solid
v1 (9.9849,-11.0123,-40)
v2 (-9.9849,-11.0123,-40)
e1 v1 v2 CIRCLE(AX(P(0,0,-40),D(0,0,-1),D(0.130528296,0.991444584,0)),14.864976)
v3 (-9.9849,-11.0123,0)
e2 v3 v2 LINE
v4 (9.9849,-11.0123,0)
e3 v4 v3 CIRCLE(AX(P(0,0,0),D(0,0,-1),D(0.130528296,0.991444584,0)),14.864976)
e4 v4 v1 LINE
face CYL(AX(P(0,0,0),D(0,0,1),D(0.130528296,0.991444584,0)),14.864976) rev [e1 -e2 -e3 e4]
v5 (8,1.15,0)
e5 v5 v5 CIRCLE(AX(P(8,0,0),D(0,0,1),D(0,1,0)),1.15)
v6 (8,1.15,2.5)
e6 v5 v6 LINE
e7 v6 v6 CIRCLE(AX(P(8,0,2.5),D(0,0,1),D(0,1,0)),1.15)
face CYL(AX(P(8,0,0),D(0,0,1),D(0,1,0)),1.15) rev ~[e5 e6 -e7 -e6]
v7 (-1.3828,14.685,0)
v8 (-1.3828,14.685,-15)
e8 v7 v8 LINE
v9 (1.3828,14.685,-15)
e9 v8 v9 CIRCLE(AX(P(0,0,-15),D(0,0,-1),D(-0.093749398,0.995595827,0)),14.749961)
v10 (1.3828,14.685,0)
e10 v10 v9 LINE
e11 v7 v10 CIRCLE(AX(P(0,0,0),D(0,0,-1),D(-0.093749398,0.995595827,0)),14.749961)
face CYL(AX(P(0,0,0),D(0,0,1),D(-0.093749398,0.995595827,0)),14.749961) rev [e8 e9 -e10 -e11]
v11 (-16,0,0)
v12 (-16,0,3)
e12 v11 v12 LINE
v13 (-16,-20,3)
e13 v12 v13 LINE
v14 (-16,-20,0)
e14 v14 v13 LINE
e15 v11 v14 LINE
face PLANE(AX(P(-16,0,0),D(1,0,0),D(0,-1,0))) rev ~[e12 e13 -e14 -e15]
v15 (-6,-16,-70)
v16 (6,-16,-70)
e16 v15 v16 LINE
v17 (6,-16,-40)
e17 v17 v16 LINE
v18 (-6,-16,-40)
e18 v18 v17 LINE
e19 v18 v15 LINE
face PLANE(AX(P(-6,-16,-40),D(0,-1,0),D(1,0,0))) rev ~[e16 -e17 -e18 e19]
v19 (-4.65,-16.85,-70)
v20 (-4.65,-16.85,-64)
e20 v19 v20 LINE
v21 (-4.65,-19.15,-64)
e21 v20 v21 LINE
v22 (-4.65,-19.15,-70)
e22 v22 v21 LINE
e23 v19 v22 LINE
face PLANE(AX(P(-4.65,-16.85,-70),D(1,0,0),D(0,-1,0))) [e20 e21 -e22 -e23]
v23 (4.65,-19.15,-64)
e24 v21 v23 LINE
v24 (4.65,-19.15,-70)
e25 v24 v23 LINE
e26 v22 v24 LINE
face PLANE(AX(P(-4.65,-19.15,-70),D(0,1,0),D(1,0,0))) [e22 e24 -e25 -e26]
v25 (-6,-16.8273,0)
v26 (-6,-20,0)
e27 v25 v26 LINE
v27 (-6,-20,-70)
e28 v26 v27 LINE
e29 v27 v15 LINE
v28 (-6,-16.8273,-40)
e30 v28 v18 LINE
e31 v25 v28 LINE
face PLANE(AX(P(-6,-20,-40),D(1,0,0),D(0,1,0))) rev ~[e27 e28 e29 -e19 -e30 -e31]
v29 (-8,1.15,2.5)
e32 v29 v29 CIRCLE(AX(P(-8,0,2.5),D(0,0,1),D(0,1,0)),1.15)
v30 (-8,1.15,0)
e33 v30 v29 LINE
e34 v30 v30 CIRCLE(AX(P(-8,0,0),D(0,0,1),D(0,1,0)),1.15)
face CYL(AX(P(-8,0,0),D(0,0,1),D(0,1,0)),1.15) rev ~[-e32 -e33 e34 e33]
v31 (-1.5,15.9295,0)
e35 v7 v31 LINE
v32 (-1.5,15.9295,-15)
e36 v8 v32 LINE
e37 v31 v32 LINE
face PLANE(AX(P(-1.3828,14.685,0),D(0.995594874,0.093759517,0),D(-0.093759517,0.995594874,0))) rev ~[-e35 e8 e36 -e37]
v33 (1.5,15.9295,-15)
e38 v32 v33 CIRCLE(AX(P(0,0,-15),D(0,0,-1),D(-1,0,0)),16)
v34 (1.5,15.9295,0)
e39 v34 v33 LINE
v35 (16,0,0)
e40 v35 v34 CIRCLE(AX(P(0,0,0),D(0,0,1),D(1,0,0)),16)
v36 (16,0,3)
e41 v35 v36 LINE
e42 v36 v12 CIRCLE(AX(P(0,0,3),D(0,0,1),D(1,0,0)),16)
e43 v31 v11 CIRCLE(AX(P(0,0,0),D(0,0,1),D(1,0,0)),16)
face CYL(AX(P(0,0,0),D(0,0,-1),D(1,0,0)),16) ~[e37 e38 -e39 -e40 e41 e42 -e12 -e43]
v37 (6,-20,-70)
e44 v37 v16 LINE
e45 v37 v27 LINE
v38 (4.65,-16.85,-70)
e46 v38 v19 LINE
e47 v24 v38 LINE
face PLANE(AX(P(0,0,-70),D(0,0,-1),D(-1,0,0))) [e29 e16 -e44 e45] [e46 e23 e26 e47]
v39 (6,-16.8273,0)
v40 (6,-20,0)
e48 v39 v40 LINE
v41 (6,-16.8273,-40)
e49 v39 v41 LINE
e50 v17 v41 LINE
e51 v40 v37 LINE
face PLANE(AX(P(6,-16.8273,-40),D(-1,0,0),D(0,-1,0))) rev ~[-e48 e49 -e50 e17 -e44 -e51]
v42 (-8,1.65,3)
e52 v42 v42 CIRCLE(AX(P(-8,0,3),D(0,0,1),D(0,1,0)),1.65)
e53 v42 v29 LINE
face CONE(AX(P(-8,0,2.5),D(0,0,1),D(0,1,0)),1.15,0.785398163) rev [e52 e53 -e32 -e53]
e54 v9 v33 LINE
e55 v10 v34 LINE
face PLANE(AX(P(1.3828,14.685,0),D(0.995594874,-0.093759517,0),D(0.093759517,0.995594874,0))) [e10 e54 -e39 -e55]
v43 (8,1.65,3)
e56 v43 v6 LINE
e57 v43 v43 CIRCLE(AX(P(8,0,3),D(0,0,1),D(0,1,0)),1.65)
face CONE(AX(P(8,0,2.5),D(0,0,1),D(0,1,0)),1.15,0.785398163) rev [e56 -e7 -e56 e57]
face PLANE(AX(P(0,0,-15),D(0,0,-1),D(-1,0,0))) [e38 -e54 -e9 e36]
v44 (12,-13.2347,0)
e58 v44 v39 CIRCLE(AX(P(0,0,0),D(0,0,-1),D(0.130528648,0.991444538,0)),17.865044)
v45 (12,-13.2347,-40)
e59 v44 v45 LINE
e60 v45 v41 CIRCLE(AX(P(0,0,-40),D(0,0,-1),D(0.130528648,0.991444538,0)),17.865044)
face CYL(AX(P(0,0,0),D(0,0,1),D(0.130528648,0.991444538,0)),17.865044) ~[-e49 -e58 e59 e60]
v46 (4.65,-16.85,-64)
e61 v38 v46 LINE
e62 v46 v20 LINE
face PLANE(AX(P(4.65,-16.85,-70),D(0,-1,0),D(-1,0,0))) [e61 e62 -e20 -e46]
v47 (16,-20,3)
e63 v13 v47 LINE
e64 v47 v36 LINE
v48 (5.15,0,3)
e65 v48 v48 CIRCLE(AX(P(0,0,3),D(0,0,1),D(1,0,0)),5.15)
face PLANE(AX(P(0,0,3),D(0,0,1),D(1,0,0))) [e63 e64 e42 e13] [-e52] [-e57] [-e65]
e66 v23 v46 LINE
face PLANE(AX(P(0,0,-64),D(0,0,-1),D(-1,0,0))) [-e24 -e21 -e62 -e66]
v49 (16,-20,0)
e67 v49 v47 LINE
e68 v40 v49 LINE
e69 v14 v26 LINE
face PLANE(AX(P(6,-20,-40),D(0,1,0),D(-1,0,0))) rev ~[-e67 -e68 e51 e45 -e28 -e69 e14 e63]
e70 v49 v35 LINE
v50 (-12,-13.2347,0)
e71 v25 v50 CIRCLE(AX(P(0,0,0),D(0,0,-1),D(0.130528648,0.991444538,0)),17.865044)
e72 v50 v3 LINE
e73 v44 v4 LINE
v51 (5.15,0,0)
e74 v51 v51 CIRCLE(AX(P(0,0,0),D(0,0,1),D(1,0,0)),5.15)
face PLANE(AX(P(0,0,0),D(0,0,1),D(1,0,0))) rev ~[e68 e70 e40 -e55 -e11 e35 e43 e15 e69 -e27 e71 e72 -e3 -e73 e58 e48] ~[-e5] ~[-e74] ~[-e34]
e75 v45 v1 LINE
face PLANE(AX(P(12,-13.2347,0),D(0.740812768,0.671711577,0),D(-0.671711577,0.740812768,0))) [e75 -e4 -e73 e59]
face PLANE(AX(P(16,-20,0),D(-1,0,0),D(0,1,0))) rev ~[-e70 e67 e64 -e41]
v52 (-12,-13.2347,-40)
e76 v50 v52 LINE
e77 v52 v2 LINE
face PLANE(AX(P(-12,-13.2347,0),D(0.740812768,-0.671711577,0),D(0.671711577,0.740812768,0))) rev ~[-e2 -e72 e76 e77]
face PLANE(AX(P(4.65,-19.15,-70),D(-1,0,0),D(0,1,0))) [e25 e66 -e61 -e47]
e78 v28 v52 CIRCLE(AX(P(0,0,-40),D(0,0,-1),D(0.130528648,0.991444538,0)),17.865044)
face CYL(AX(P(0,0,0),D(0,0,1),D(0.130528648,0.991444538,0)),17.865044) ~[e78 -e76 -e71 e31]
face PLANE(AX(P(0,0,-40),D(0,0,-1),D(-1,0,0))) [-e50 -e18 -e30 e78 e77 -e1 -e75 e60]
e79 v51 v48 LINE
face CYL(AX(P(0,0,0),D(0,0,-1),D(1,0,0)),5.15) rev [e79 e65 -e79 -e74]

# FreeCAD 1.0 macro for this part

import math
import FreeCAD as App
import Part
import Sketcher
Q = App.Units.Quantity


def edges_at(feature, points):
    """Names of the edges that pass closest to the given points."""
    edges = feature.Shape.Edges
    near = lambda p: min(range(len(edges)), key=lambda i: edges[i].distToShape(Part.Vertex(*p))[0])
    return sorted({f"Edge{near(p) + 1}" for p in points})


def add_polygon(sketch, points):
    """Adds a closed chain of lines whose ends are joined by coincident constraints."""
    first, n = sketch.GeometryCount, len(points)
    for a, b in zip(points, points[1:] + points[:1]):
        sketch.addGeometry(Part.LineSegment(App.Vector(*a, 0), App.Vector(*b, 0)), False)
    for i in range(n):
        sketch.addConstraint(Sketcher.Constraint("Coincident", first + i, 2, first + (i + 1) % n, 1))

doc = App.newDocument("Part")
params = doc.addObject("Spreadsheet::Sheet", "Params")
for row, (alias, value) in enumerate([
    ("sketch1_radius", "16 mm"),
    ("sketch1_diameter", "10.3 mm"),
    ("sketch1_height", "20 mm"),
    ("pad1_length", "3 mm"),
    ("sketch2_diameter", "2.3 mm"),
    ("hole_diameter", "2.3 mm"),
    ("sketch3_radius", "16 mm"),
    ("sketch3_length", "1.25 mm"),
    ("pad2_length", "15 mm"),
    ("sketch4_width", "12 mm"),
    ("sketch4_length", "3 mm"),
    ("pad3_length", "40 mm"),
    ("chamfer_size", "0.5 mm"),
    ("sketch5_height", "4 mm"),
    ("sketch5_width", "12 mm"),
    ("pad4_length", "30 mm"),
    ("sketch6_width", "9.3 mm"),
    ("sketch6_height", "2.3 mm"),
    ("pocket1_length", "6 mm"),
], start=1):
    params.set(f"A{row}", alias)
    params.set(f"B{row}", "=" + value)
    params.setAlias(f"B{row}", alias)

body = doc.addObject("PartDesign::Body", "Body")

# Sketch on XY plane
sketch1 = body.newObject("Sketcher::SketchObject", "Sketch")
sketch1.AttachmentSupport = (doc.getObject("XY_Plane"), [""])
sketch1.MapMode = "FlatFace"
sketch1.addGeometry(Part.ArcOfCircle(Part.Circle(App.Vector(0, 0, 0), App.Vector(0, 0, 1), 16), math.radians(0), math.radians(180)), False)
sketch1.addGeometry(Part.LineSegment(App.Vector(-16, 0, 0), App.Vector(-16, -20, 0)), False)
sketch1.addGeometry(Part.LineSegment(App.Vector(-16, -20, 0), App.Vector(16, -20, 0)), False)
sketch1.addGeometry(Part.LineSegment(App.Vector(16, -20, 0), App.Vector(16, 0, 0)), False)
sketch1.addGeometry(Part.Circle(App.Vector(0, 0, 0), App.Vector(0, 0, 1), 5), False)
sketch1.addConstraint(Sketcher.Constraint("Tangent", 0, 2, 1, 1))
sketch1.addConstraint(Sketcher.Constraint("Coincident", 1, 2, 2, 1))
sketch1.addConstraint(Sketcher.Constraint("Coincident", 2, 2, 3, 1))
sketch1.addConstraint(Sketcher.Constraint("Tangent", 3, 2, 0, 1))
sketch1.addConstraint(Sketcher.Constraint("Vertical", 1))
sketch1.addConstraint(Sketcher.Constraint("Horizontal", 2))
sketch1.addConstraint(Sketcher.Constraint("Vertical", 3))
sketch1.addConstraint(Sketcher.Constraint("Coincident", 0, 3, -1, 1))
sketch1.addConstraint(Sketcher.Constraint("Coincident", 4, 3, -1, 1))
sketch1.addConstraint(Sketcher.Constraint("Radius", 0, 16.0))
sketch1.addConstraint(Sketcher.Constraint("Diameter", 4, 10.3))
sketch1.addConstraint(Sketcher.Constraint("DistanceY", 1, 2, 1, 1, 20.0))
sketch1.setExpression("Constraints[9]", "Params.sketch1_radius")
sketch1.setExpression("Constraints[10]", "Params.sketch1_diameter")
sketch1.setExpression("Constraints[11]", "Params.sketch1_height")
pad1 = body.newObject("PartDesign::Pad", "Pad")
pad1.Profile = sketch1
pad1.setExpression("Length", "Params.pad1_length")

# Sketch on XY plane
sketch2 = body.newObject("Sketcher::SketchObject", "Sketch001")
sketch2.AttachmentSupport = (doc.getObject("XY_Plane"), [""])
sketch2.MapMode = "FlatFace"
sketch2.addGeometry(Part.Circle(App.Vector(-8, 0, 0), App.Vector(0, 0, 1), 1.1), False)
sketch2.addGeometry(Part.Circle(App.Vector(8, 0, 0), App.Vector(0, 0, 1), 1.1), False)
sketch2.addConstraint(Sketcher.Constraint("Equal", 0, 1))
sketch2.addConstraint(Sketcher.Constraint("Symmetric", 0, 3, 1, 3, -1, 1))
sketch2.addConstraint(Sketcher.Constraint("PointOnObject", 0, 3, -1))
sketch2.addConstraint(Sketcher.Constraint("Diameter", 0, 2.3))
sketch2.addConstraint(Sketcher.Constraint("DistanceX", 0, 3, -1, 1, 8.0))
sketch2.setExpression("Constraints[3]", "Params.sketch2_diameter")
doc.recompute()
hole = body.newObject("PartDesign::Hole", "Hole")
hole.Profile = sketch2
hole.ThreadType = "None"
hole.setExpression("Diameter", "Params.hole_diameter")
hole.DepthType = "ThroughAll"
hole.Reversed = True

# Sketch on XY plane
sketch3 = body.newObject("Sketcher::SketchObject", "Sketch002")
sketch3.AttachmentSupport = (doc.getObject("XY_Plane"), [""])
sketch3.MapMode = "FlatFace"
sketch3.addGeometry(Part.ArcOfCircle(Part.Circle(App.Vector(0, 0, 0), App.Vector(0, 0, 1), 14.7), math.radians(84.62), math.radians(95.38)), False)
sketch3.addGeometry(Part.LineSegment(App.Vector(-1.4, 14.7, 0), App.Vector(-1.5, 15.9, 0)), False)
sketch3.addGeometry(Part.ArcOfCircle(Part.Circle(App.Vector(0, 0, 0), App.Vector(0, 0, 1), 16), math.radians(84.62), math.radians(95.38)), False)
sketch3.addGeometry(Part.LineSegment(App.Vector(1.5, 15.9, 0), App.Vector(1.4, 14.7, 0)), False)
sketch3.addConstraint(Sketcher.Constraint("Coincident", 0, 2, 1, 1))
sketch3.addConstraint(Sketcher.Constraint("Coincident", 1, 2, 2, 2))
sketch3.addConstraint(Sketcher.Constraint("Coincident", 2, 1, 3, 1))
sketch3.addConstraint(Sketcher.Constraint("Coincident", 3, 2, 0, 1))
sketch3.addConstraint(Sketcher.Constraint("Coincident", 0, 3, -1, 1))
sketch3.addConstraint(Sketcher.Constraint("Coincident", 2, 3, -1, 1))
sketch3.addConstraint(Sketcher.Constraint("Horizontal", 1, 2, 2, 1))
sketch3.addConstraint(Sketcher.Constraint("Horizontal", 0, 2, 3, 2))
sketch3.addConstraint(Sketcher.Constraint("Radius", 2, 16.0))
sketch3.addConstraint(Sketcher.Constraint("DistanceX", 1, 2, 2, 1, 3.0))
sketch3.addConstraint(Sketcher.Constraint("Distance", 1, 1.25))
sketch3.addConstraint(Sketcher.Constraint("Angle", 1, Q("95.38 deg")))
sketch3.setExpression("Constraints[8]", "Params.sketch3_radius")
sketch3.setExpression("Constraints[10]", "Params.sketch3_length")
pad2 = body.newObject("PartDesign::Pad", "Pad001")
pad2.Profile = sketch3
pad2.setExpression("Length", "Params.pad2_length")
pad2.Reversed = True

# Sketch on XY plane
sketch4 = body.newObject("Sketcher::SketchObject", "Sketch003")
sketch4.AttachmentSupport = (doc.getObject("XY_Plane"), [""])
sketch4.MapMode = "FlatFace"
sketch4.addGeometry(Part.ArcOfCircle(Part.Circle(App.Vector(0, 0, 0), App.Vector(0, 0, 1), 14.9), math.radians(-132), math.radians(-48)), False)
sketch4.addGeometry(Part.LineSegment(App.Vector(10, -11, 0), App.Vector(12, -13.2, 0)), False)
sketch4.addGeometry(Part.ArcOfCircle(Part.Circle(App.Vector(0, 0, 0), App.Vector(0, 0, 1), 17.9), math.radians(-70), math.radians(-48)), False)
sketch4.addGeometry(Part.LineSegment(App.Vector(6, -16.8, 0), App.Vector(6, -20, 0)), False)
sketch4.addGeometry(Part.LineSegment(App.Vector(6, -20, 0), App.Vector(-6, -20, 0)), False)
sketch4.addGeometry(Part.LineSegment(App.Vector(-6, -20, 0), App.Vector(-6, -16.8, 0)), False)
sketch4.addGeometry(Part.ArcOfCircle(Part.Circle(App.Vector(0, 0, 0), App.Vector(0, 0, 1), 17.9), math.radians(-132), math.radians(-110)), False)
sketch4.addGeometry(Part.LineSegment(App.Vector(-12, -13.2, 0), App.Vector(-10, -11, 0)), False)
sketch4.addConstraint(Sketcher.Constraint("Coincident", 0, 2, 1, 1))
sketch4.addConstraint(Sketcher.Constraint("Coincident", 1, 2, 2, 2))
sketch4.addConstraint(Sketcher.Constraint("Coincident", 2, 1, 3, 1))
sketch4.addConstraint(Sketcher.Constraint("Coincident", 3, 2, 4, 1))
sketch4.addConstraint(Sketcher.Constraint("Coincident", 4, 2, 5, 1))
sketch4.addConstraint(Sketcher.Constraint("Coincident", 5, 2, 6, 2))
sketch4.addConstraint(Sketcher.Constraint("Coincident", 6, 1, 7, 1))
sketch4.addConstraint(Sketcher.Constraint("Coincident", 7, 2, 0, 1))
sketch4.addConstraint(Sketcher.Constraint("Vertical", 3))
sketch4.addConstraint(Sketcher.Constraint("Horizontal", 4))
sketch4.addConstraint(Sketcher.Constraint("Vertical", 5))
sketch4.addConstraint(Sketcher.Constraint("Coincident", 0, 3, -1, 1))
sketch4.addConstraint(Sketcher.Constraint("Coincident", 2, 3, -1, 1))
sketch4.addConstraint(Sketcher.Constraint("Coincident", 6, 3, -1, 1))
sketch4.addConstraint(Sketcher.Constraint("Equal", 2, 6))
sketch4.addConstraint(Sketcher.Constraint("Horizontal", 2, 1, 5, 2))
sketch4.addConstraint(Sketcher.Constraint("Horizontal", 1, 2, 6, 1))
sketch4.addConstraint(Sketcher.Constraint("Horizontal", 0, 2, 7, 2))
sketch4.addConstraint(Sketcher.Constraint("DistanceX", 4, 2, 4, 1, 12.0))
sketch4.addConstraint(Sketcher.Constraint("Distance", 1, 3.0))
sketch4.addConstraint(Sketcher.Constraint("DistanceX", -1, 1, 1, 2, 12.0))
sketch4.addConstraint(Sketcher.Constraint("DistanceY", 3, 2, -1, 1, 20.0))
sketch4.addConstraint(Sketcher.Constraint("Angle", 1, Q("-47.8007 deg")))
sketch4.addConstraint(Sketcher.Constraint("Radius", 0, 14.865))
sketch4.setExpression("Constraints[18]", "Params.sketch4_width")
sketch4.setExpression("Constraints[19]", "Params.sketch4_length")
pad3 = body.newObject("PartDesign::Pad", "Pad002")
pad3.Profile = sketch4
pad3.setExpression("Length", "Params.pad3_length")
pad3.Reversed = True
doc.recompute()

chamfer = body.newObject("PartDesign::Chamfer", "Chamfer")
chamfer.Base = (pad3, edges_at(pad3, [(-8, -1.15, 3), (8, -1.15, 3)]))
chamfer.setExpression("Size", "Params.chamfer_size")

# Sketch on XY plane
sketch5 = body.newObject("Sketcher::SketchObject", "Sketch004")
sketch5.AttachmentSupport = (doc.getObject("XY_Plane"), [""])
sketch5.MapMode = "FlatFace"
sketch5.AttachmentOffset = App.Placement(App.Vector(0, 0, -40), App.Rotation())
add_polygon(sketch5, [(6, -16), (6, -20), (-6, -20), (-6, -16)])  # lines 0-3
sketch5.addConstraint(Sketcher.Constraint("Vertical", 0))
sketch5.addConstraint(Sketcher.Constraint("Horizontal", 1))
sketch5.addConstraint(Sketcher.Constraint("Vertical", 2))
sketch5.addConstraint(Sketcher.Constraint("Horizontal", 3))
sketch5.addConstraint(Sketcher.Constraint("DistanceY", 0, 2, 0, 1, 4.0))
sketch5.addConstraint(Sketcher.Constraint("DistanceX", 1, 2, 1, 1, 12.0))
sketch5.addConstraint(Sketcher.Constraint("DistanceX", -1, 1, 0, 2, 6.0))
sketch5.addConstraint(Sketcher.Constraint("DistanceY", 0, 2, -1, 1, 20.0))
sketch5.setExpression("Constraints[8]", "Params.sketch5_height")
sketch5.setExpression("Constraints[9]", "Params.sketch5_width")
pad4 = body.newObject("PartDesign::Pad", "Pad003")
pad4.Profile = sketch5
pad4.setExpression("Length", "Params.pad4_length")
pad4.Reversed = True

# Sketch on XY plane
sketch6 = body.newObject("Sketcher::SketchObject", "Sketch005")
sketch6.AttachmentSupport = (doc.getObject("XY_Plane"), [""])
sketch6.MapMode = "FlatFace"
sketch6.AttachmentOffset = App.Placement(App.Vector(0, 0, -70), App.Rotation())
add_polygon(sketch6, [(-4.7, -16.9), (4.7, -16.9), (4.7, -19.1), (-4.7, -19.1)])  # lines 0-3
sketch6.addConstraint(Sketcher.Constraint("Horizontal", 0))
sketch6.addConstraint(Sketcher.Constraint("Vertical", 1))
sketch6.addConstraint(Sketcher.Constraint("Horizontal", 2))
sketch6.addConstraint(Sketcher.Constraint("Vertical", 3))
sketch6.addConstraint(Sketcher.Constraint("DistanceX", 0, 1, 0, 2, 9.3))
sketch6.addConstraint(Sketcher.Constraint("DistanceY", 1, 2, 1, 1, 2.3))
sketch6.addConstraint(Sketcher.Constraint("DistanceX", -1, 1, 0, 2, 4.65))
sketch6.addConstraint(Sketcher.Constraint("DistanceY", 0, 2, -1, 1, 16.85))
sketch6.setExpression("Constraints[8]", "Params.sketch6_width")
sketch6.setExpression("Constraints[9]", "Params.sketch6_height")
pocket1 = body.newObject("PartDesign::Pocket", "Pocket")
pocket1.Profile = sketch6
pocket1.setExpression("Length", "Params.pocket1_length")
pocket1.Reversed = True

doc.recompute()
